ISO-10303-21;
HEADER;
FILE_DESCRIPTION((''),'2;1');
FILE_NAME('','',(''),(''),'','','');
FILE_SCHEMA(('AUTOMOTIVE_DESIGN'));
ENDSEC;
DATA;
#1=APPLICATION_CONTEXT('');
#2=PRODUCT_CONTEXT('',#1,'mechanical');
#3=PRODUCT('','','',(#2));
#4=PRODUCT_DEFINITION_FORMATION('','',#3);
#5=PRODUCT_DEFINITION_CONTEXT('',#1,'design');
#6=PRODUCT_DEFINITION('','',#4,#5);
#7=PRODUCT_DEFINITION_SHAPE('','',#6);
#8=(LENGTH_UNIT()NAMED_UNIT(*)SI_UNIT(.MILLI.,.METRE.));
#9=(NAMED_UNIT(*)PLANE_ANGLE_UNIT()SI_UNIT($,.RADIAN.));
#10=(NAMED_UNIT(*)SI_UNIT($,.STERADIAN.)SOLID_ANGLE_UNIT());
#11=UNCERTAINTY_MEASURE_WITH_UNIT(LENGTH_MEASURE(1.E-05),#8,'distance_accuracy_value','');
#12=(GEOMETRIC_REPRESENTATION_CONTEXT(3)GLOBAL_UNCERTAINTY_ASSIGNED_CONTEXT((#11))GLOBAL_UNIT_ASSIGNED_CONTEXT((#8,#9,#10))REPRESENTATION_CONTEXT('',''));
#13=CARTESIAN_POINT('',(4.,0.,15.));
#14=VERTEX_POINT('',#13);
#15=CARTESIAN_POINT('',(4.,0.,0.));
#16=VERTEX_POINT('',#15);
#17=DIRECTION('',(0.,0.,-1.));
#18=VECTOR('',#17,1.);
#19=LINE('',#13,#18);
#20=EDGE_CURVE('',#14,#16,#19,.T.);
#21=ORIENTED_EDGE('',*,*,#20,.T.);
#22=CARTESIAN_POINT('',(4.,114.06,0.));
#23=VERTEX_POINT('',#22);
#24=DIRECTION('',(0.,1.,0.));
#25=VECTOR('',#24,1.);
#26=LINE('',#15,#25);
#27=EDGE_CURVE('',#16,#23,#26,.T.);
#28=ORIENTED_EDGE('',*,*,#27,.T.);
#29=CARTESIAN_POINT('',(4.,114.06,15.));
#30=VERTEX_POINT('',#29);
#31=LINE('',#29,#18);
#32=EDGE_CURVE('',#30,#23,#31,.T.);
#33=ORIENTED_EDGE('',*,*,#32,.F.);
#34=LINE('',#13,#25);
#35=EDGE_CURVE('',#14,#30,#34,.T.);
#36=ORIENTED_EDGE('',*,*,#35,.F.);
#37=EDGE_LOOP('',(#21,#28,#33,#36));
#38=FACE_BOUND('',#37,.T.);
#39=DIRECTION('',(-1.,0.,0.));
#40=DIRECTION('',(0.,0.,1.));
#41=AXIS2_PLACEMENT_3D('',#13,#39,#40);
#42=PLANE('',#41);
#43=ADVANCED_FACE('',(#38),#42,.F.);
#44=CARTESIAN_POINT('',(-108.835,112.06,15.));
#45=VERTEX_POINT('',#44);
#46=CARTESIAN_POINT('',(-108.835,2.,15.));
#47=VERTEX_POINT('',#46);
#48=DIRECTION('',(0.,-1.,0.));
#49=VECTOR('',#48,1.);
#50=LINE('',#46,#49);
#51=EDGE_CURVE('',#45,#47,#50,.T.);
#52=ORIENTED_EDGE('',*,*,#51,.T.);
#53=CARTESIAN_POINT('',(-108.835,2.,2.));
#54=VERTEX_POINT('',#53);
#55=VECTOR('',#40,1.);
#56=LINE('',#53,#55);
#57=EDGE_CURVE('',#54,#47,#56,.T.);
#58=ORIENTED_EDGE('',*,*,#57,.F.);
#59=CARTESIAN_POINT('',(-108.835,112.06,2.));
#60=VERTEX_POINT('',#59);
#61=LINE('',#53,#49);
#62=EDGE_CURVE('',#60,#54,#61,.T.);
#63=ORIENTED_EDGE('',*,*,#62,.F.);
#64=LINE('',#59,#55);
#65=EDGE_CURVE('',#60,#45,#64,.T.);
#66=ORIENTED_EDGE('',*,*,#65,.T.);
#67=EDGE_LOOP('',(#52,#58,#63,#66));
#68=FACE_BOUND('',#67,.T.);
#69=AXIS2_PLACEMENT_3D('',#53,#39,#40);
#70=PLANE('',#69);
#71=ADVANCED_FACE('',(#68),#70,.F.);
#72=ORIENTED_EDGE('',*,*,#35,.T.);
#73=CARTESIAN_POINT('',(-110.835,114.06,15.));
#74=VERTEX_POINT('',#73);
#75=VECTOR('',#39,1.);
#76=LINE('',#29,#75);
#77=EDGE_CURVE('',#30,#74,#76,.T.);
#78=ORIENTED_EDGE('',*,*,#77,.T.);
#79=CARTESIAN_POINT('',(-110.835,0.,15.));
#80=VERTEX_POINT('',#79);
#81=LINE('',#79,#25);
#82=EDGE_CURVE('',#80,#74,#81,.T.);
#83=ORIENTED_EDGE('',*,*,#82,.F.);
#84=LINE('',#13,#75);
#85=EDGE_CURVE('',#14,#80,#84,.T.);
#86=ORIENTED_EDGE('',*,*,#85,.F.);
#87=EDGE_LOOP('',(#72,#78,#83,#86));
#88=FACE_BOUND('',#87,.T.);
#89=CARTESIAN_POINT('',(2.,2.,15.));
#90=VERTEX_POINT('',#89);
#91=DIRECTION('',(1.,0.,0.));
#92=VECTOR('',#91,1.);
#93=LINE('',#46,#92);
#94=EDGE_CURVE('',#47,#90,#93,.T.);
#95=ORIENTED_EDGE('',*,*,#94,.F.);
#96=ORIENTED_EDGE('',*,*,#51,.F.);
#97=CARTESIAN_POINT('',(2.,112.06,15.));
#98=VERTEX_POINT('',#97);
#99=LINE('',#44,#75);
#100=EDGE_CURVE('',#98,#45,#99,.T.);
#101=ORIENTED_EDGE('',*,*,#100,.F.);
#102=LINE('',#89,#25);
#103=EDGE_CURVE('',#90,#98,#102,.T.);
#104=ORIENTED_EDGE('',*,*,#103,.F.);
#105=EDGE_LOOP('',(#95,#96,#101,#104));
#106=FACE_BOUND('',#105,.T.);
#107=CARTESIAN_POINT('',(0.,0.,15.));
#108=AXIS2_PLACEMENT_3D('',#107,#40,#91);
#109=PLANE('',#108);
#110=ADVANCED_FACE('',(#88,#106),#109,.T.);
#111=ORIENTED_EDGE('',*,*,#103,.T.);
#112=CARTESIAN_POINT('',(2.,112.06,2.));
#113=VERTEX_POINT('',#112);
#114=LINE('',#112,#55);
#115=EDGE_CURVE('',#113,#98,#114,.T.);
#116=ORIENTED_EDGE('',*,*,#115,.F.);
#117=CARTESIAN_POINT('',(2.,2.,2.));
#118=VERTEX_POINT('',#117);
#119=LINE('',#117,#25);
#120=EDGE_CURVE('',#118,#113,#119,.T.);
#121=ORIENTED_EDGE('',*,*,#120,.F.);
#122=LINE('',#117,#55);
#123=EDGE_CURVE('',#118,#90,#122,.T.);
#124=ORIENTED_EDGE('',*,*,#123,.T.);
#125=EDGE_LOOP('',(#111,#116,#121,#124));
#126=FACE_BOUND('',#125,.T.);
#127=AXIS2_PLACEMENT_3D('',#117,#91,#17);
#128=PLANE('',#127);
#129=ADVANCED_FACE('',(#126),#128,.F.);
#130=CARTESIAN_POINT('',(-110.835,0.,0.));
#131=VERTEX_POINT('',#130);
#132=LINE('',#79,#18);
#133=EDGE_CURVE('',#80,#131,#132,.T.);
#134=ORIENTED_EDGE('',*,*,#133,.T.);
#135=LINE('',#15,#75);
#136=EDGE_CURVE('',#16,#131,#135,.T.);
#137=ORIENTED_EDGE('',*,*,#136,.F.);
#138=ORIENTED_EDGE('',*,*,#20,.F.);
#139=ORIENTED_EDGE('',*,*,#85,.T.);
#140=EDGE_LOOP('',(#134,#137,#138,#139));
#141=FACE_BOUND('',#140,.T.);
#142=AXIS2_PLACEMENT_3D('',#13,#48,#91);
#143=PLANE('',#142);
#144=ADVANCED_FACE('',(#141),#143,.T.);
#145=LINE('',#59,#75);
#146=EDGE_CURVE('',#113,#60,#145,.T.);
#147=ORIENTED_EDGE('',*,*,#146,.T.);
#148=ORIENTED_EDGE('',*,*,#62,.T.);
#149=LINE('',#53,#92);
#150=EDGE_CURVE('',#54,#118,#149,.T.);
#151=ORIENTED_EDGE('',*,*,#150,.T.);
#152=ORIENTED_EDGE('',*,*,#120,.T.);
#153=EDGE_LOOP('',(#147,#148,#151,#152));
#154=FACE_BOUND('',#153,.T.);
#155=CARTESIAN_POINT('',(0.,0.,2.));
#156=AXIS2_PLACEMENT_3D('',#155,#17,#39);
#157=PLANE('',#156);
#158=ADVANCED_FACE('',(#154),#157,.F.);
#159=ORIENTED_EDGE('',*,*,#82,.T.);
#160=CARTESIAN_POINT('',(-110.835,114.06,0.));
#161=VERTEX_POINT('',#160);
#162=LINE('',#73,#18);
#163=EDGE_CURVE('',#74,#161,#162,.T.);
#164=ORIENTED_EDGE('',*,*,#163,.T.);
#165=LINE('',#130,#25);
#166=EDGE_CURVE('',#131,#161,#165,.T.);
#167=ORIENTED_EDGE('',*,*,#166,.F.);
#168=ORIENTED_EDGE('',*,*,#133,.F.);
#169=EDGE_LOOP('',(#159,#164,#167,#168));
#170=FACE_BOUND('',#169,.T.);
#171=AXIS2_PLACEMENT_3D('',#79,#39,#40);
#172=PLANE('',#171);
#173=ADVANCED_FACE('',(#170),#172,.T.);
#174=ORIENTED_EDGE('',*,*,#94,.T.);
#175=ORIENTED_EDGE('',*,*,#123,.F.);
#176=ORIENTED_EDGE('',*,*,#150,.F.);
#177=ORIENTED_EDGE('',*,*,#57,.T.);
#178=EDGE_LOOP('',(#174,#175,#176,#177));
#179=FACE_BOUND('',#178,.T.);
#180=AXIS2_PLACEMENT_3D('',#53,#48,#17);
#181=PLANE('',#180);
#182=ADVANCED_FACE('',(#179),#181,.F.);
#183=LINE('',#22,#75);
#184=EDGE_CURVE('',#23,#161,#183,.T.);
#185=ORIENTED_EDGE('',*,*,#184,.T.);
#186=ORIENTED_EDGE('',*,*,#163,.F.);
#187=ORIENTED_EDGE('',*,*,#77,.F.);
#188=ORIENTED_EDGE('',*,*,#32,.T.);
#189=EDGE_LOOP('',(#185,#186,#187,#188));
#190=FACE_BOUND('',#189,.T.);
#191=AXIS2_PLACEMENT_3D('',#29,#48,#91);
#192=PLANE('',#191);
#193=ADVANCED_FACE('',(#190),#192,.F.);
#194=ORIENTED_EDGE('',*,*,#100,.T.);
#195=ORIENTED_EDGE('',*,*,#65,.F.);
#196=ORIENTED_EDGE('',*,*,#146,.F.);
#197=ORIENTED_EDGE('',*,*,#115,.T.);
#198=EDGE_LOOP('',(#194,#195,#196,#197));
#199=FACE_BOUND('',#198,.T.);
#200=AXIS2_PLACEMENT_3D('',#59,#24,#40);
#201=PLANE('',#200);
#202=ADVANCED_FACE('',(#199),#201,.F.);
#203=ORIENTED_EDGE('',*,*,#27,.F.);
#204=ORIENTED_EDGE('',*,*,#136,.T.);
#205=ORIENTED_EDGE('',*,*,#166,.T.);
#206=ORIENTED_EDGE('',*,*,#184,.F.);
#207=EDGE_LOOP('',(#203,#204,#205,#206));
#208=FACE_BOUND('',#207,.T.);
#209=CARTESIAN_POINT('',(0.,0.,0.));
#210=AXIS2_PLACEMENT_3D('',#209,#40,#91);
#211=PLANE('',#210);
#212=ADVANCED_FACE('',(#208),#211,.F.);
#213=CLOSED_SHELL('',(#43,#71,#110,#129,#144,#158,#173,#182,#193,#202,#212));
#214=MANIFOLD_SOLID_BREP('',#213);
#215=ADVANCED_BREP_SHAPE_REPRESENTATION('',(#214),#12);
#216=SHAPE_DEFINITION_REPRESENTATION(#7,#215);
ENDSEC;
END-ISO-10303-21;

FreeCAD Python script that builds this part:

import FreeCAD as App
import Part
import Sketcher

V = App.Vector
Q = App.Units.Quantity


def add_polygon(sketch, points):
    """Adds a closed chain of lines whose ends are joined by coincident constraints."""
    first, n = sketch.GeometryCount, len(points)
    for a, b in zip(points, points[1:] + points[:1]):
        sketch.addGeometry(Part.LineSegment(App.Vector(*a, 0), App.Vector(*b, 0)), False)
    for i in range(n):
        sketch.addConstraint(Sketcher.Constraint("Coincident", first + i, 2, first + (i + 1) % n, 1))

doc = App.newDocument("Part")
body = doc.addObject("PartDesign::Body", "Body")

# Sketch on XY plane
sketch1 = body.newObject("Sketcher::SketchObject", "Sketch")
sketch1.AttachmentSupport = (doc.getObject("XY_Plane"), [""])
sketch1.MapMode = "FlatFace"
add_polygon(sketch1, [(-110.835, 114.06), (-110.835, 0), (4, 0), (4, 114.06)])  # lines 0-3
sketch1.addConstraint([
    Sketcher.Constraint("Vertical", 0),
    Sketcher.Constraint("Horizontal", 1),
    Sketcher.Constraint("Vertical", 2),
    Sketcher.Constraint("Horizontal", 3),
    Sketcher.Constraint("PointOnObject", 0, 2, -1),
    Sketcher.Constraint("DistanceX", -1, 1, 1, 2, Q("4 mm")),
    Sketcher.Constraint("DistanceY", 0, 2, 0, 1, Q("114.06 mm")),
    Sketcher.Constraint("DistanceX", 1, 1, 1, 2, Q("114.835 mm")),
])
pad1 = body.newObject("PartDesign::Pad", "Pad")
pad1.Profile = sketch1
pad1.Length = 15

# Sketch on XY plane
sketch2 = body.newObject("Sketcher::SketchObject", "Sketch001")
sketch2.AttachmentSupport = (doc.getObject("XY_Plane"), [""])
sketch2.MapMode = "FlatFace"
sketch2.AttachmentOffset = App.Placement(V(0, 0, 15), App.Rotation())
add_polygon(sketch2, [(-108.835, 112.06), (-108.835, 2), (2, 2), (2, 112.06)])  # lines 0-3
sketch2.addConstraint([
    Sketcher.Constraint("Vertical", 0),
    Sketcher.Constraint("Horizontal", 1),
    Sketcher.Constraint("Vertical", 2),
    Sketcher.Constraint("Horizontal", 3),
    Sketcher.Constraint("DistanceY", -1, 1, 0, 2, Q("2 mm")),
    Sketcher.Constraint("DistanceX", -1, 1, 1, 2, Q("2 mm")),
    Sketcher.Constraint("DistanceY", 0, 2, 0, 1, Q("110.06 mm")),
    Sketcher.Constraint("DistanceX", 1, 1, 1, 2, Q("110.835 mm")),
])
pocket1 = body.newObject("PartDesign::Pocket", "Pocket")
pocket1.Profile = sketch2
pocket1.Length = 13

doc.recompute()
